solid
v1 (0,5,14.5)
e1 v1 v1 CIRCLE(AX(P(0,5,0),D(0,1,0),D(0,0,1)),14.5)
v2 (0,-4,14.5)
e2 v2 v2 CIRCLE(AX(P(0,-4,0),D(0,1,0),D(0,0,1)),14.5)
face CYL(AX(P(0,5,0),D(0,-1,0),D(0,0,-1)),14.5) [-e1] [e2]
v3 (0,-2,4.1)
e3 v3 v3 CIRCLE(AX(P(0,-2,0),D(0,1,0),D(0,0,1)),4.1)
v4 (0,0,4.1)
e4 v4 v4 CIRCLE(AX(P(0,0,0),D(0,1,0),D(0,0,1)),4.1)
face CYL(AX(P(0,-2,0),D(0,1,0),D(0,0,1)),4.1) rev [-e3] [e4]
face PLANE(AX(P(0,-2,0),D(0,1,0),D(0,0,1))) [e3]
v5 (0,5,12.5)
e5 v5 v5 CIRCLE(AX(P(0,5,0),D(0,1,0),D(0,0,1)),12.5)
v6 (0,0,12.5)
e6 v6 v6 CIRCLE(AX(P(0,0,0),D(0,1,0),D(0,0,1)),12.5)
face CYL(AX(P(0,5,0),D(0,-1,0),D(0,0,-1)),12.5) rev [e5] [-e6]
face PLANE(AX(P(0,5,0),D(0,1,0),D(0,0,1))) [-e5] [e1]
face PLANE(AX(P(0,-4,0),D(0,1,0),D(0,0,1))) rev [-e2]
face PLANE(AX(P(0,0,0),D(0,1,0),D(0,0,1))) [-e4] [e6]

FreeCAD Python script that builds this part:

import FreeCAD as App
import Part
import Sketcher
from FreeCAD import Vector
Q = App.Units.Quantity

doc = App.newDocument("Part")
params = doc.addObject("Spreadsheet::Sheet", "Params")
for row, (alias, value) in enumerate([
    ("sketch1_diameter", "29 mm"),
    ("sketch1_diameter2", "25 mm"),
    ("pad1_length", "5 mm"),
    ("sketch2_diameter", "29 mm"),
    ("pad2_length", "4 mm"),
    ("sketch3_diameter", "8.2 mm"),
    ("pocket1_length", "2 mm"),
], start=1):
    params.set(f"A{row}", alias)
    params.set(f"B{row}", "=" + value)
    params.setAlias(f"B{row}", alias)

body = doc.addObject("PartDesign::Body", "Body")

sketch1 = body.newObject("Sketcher::SketchObject", "Sketch")
sketch1.AttachmentSupport = (doc.getObject("XZ_Plane"), [""])
sketch1.MapMode = "FlatFace"
sketch1.addGeometry(Part.Circle(Vector(0, 0, 0), Vector(0, 0, 1), 14), False)
sketch1.addGeometry(Part.Circle(Vector(0, 0, 0), Vector(0, 0, 1), 12), False)
sketch1.addConstraint(Sketcher.Constraint("Coincident", 0, 3, -1, 1))
sketch1.addConstraint(Sketcher.Constraint("Coincident", 1, 3, -1, 1))
sketch1.addConstraint(Sketcher.Constraint("Diameter", 0, Q("29 mm")))
sketch1.addConstraint(Sketcher.Constraint("Diameter", 1, Q("25 mm")))
sketch1.setExpression("Constraints[2]", "Params.sketch1_diameter")
sketch1.setExpression("Constraints[3]", "Params.sketch1_diameter2")
pad1 = body.newObject("PartDesign::Pad", "Pad")
pad1.Profile = sketch1
pad1.setExpression("Length", "Params.pad1_length")
pad1.Reversed = True

sketch2 = body.newObject("Sketcher::SketchObject", "Sketch001")
sketch2.AttachmentSupport = (doc.getObject("XZ_Plane"), [""])
sketch2.MapMode = "FlatFace"
sketch2.AttachmentOffset = App.Placement(Vector(0, 0, 4), App.Rotation())
sketch2.addGeometry(Part.Circle(Vector(0, 0, 0), Vector(0, 0, 1), 14), False)
sketch2.addConstraint(Sketcher.Constraint("Coincident", 0, 3, -1, 1))
sketch2.addConstraint(Sketcher.Constraint("Diameter", 0, Q("29 mm")))
sketch2.setExpression("Constraints[1]", "Params.sketch2_diameter")
pad2 = body.newObject("PartDesign::Pad", "Pad001")
pad2.Profile = sketch2
pad2.setExpression("Length", "Params.pad2_length")
pad2.Reversed = True

sketch3 = body.newObject("Sketcher::SketchObject", "Sketch002")
sketch3.AttachmentSupport = (doc.getObject("XZ_Plane"), [""])
sketch3.MapMode = "FlatFace"
sketch3.addGeometry(Part.Circle(Vector(0, 0, 0), Vector(0, 0, 1), 4.1), False)
sketch3.addConstraint(Sketcher.Constraint("Coincident", 0, 3, -1, 1))
sketch3.addConstraint(Sketcher.Constraint("Diameter", 0, Q("8.2 mm")))
sketch3.setExpression("Constraints[1]", "Params.sketch3_diameter")
pocket1 = body.newObject("PartDesign::Pocket", "Pocket")
pocket1.Profile = sketch3
pocket1.setExpression("Length", "Params.pocket1_length")
pocket1.Reversed = True

doc.recompute()
